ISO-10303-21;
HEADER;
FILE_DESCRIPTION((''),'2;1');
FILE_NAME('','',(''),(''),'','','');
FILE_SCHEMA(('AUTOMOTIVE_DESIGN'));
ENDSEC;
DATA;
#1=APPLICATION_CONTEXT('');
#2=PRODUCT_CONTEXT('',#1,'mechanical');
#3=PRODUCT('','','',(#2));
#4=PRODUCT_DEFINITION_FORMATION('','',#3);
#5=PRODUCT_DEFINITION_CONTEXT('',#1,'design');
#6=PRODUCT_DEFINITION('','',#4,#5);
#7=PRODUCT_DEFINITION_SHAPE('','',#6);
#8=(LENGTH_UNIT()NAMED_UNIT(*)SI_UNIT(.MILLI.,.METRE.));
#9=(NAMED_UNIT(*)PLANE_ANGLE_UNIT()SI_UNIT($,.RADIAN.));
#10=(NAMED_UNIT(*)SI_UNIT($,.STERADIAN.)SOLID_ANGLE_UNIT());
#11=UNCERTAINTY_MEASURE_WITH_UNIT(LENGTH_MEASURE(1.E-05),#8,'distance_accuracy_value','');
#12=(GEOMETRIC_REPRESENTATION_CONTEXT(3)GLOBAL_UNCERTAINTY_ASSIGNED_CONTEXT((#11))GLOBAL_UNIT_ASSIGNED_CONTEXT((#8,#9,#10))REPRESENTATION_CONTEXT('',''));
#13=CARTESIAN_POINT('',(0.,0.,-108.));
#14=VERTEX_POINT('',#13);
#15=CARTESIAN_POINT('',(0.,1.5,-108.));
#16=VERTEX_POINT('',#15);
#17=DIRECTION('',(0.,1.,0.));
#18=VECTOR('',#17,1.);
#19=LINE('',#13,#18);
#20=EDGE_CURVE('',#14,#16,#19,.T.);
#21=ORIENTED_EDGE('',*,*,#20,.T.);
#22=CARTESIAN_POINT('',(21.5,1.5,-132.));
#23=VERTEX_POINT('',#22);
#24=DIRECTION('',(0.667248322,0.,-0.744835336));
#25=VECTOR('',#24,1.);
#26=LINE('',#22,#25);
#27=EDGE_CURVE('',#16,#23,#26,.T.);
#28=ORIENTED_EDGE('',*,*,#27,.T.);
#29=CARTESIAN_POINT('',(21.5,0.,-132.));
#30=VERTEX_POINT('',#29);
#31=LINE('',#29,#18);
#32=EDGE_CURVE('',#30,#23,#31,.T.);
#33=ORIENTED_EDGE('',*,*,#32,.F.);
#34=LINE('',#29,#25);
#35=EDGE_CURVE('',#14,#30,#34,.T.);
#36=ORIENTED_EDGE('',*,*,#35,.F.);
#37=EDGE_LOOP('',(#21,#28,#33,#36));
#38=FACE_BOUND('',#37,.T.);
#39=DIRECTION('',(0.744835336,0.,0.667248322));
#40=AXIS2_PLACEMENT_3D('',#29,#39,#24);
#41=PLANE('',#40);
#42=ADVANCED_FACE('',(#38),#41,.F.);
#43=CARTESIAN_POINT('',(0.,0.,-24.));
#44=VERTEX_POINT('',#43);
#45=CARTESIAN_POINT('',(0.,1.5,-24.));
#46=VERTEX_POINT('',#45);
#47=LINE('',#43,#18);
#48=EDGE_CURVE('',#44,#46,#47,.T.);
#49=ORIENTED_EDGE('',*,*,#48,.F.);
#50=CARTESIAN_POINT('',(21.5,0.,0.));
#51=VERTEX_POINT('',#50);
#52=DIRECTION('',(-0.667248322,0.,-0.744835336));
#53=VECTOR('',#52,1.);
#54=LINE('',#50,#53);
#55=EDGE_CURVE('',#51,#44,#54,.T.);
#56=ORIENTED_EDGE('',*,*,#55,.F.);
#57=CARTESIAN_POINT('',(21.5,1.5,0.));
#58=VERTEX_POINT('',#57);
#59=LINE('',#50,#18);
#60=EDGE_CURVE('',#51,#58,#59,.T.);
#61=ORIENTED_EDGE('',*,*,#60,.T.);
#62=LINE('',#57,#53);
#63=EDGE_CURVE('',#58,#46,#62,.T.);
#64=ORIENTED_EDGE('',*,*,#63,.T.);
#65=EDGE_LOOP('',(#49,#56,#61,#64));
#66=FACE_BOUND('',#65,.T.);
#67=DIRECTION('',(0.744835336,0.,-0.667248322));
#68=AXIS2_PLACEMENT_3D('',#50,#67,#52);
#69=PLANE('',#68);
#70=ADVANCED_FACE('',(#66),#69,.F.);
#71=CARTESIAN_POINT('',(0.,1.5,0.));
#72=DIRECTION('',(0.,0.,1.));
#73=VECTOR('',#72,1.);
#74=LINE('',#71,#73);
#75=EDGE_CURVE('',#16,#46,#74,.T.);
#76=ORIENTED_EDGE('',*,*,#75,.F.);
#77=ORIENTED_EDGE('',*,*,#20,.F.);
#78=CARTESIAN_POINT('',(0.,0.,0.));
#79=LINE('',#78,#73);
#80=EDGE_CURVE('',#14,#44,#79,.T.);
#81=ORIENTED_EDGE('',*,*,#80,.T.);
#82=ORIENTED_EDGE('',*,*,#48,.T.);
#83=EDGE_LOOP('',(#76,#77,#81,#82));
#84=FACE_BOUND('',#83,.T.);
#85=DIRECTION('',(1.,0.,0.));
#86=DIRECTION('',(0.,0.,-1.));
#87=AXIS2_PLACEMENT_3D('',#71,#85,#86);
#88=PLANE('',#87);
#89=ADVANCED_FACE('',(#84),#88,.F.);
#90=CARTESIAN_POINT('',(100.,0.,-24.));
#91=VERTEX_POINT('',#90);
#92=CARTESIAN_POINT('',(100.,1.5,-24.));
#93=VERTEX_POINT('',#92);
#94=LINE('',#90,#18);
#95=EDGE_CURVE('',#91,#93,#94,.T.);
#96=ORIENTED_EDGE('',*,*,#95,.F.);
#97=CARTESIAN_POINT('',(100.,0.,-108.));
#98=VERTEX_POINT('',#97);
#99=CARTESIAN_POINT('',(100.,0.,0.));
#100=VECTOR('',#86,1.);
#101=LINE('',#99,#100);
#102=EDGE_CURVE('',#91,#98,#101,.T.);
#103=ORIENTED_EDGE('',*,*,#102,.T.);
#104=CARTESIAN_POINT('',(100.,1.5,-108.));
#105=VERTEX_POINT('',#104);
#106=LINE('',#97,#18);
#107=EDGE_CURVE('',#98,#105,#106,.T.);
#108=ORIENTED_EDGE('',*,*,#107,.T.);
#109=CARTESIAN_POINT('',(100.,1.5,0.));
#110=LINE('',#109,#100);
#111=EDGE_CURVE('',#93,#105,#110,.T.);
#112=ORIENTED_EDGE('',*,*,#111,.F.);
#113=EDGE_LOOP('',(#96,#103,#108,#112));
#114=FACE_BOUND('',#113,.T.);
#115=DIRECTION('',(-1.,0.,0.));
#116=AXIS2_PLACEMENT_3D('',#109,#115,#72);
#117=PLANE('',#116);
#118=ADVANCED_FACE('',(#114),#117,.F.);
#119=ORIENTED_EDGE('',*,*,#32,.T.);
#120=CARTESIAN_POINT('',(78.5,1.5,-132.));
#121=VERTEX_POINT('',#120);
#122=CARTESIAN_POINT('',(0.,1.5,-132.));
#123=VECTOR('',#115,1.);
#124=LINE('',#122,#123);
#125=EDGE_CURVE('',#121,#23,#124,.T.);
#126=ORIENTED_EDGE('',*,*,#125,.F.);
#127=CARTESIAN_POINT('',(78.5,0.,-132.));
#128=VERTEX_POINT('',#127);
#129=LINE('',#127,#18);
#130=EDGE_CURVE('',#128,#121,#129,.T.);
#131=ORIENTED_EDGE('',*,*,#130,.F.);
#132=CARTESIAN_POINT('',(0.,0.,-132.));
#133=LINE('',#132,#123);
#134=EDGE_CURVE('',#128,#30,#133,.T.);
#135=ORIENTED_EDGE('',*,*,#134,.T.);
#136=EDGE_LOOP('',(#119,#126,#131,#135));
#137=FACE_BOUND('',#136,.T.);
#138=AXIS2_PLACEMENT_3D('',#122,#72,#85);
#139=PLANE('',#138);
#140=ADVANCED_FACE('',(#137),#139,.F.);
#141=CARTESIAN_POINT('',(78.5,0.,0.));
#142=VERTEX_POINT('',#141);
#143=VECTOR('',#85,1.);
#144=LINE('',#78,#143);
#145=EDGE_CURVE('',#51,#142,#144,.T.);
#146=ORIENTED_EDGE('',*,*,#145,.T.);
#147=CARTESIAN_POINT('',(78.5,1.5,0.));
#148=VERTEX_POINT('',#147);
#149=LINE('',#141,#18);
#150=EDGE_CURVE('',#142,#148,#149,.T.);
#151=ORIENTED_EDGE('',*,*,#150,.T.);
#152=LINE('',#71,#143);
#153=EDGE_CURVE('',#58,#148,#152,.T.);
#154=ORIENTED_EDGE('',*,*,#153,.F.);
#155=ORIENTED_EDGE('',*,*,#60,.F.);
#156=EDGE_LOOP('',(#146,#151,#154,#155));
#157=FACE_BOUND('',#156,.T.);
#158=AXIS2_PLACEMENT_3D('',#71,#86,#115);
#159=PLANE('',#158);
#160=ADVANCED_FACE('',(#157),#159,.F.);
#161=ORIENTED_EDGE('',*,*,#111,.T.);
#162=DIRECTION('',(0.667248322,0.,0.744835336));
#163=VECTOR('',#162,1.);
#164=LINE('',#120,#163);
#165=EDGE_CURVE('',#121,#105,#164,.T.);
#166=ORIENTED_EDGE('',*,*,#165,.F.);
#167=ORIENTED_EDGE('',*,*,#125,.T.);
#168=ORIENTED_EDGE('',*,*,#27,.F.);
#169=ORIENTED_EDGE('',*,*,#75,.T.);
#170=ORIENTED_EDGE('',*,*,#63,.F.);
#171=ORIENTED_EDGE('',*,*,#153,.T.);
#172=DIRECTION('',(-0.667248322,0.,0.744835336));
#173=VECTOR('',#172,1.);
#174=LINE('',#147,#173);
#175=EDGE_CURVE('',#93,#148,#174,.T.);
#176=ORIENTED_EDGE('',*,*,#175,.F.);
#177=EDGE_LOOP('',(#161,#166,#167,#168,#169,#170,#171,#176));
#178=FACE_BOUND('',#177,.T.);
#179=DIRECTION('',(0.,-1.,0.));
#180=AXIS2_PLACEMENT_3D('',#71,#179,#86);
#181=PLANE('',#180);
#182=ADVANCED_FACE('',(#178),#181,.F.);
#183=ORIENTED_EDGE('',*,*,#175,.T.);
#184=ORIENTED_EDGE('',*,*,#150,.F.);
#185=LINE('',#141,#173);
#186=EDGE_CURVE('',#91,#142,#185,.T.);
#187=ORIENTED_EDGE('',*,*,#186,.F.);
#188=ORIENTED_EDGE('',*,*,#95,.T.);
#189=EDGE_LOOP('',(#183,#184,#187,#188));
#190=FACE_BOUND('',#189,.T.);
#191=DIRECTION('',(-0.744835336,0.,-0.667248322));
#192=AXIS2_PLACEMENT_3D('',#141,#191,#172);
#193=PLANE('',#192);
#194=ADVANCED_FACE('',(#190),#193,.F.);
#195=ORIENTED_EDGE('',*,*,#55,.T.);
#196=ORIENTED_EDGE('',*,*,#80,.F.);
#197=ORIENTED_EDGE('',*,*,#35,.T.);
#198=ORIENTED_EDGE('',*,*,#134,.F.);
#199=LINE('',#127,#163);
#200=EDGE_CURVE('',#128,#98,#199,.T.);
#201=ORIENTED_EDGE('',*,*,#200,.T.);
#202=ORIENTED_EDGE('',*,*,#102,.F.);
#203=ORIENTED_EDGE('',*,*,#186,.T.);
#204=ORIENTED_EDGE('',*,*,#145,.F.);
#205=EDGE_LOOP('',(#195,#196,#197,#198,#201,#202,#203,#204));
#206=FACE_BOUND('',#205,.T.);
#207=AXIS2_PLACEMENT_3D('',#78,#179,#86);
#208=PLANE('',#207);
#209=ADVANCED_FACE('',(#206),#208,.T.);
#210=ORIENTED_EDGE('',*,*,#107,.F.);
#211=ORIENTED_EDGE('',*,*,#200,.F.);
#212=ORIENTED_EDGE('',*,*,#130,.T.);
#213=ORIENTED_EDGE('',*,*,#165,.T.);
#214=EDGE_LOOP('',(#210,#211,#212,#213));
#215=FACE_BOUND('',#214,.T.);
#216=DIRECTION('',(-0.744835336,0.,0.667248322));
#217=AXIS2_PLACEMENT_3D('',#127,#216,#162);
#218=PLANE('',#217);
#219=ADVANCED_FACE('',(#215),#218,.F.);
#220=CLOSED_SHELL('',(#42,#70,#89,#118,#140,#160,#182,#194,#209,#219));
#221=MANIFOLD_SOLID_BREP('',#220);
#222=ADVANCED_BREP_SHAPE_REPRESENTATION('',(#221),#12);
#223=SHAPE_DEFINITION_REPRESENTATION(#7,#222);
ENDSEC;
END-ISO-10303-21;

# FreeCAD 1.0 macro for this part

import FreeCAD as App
import Part
import Sketcher

V = App.Vector

doc = App.newDocument("Part")
params = doc.addObject("Spreadsheet::Sheet", "Params")
for row, (alias, value) in enumerate([
    ("sketch1_width", "100 mm"),
    ("sketch1_height", "132 mm"),
    ("pad1_length", "1.5 mm"),
    ("pocket1_length", "1.5 mm"),
], start=1):
    params.set(f"A{row}", alias)
    params.set(f"B{row}", "=" + value)
    params.setAlias(f"B{row}", alias)

body = doc.addObject("PartDesign::Body", "Body")

# Sketch on XZ plane
sketch1 = body.newObject("Sketcher::SketchObject", "Sketch")
sketch1.AttachmentSupport = (doc.getObject("XZ_Plane"), [""])
sketch1.MapMode = "FlatFace"
sketch1.addGeometry([
    Part.LineSegment(V(0, -132, 0), V(0, 0, 0)),
    Part.LineSegment(V(0, 0, 0), V(100, 0, 0)),
    Part.LineSegment(V(100, 0, 0), V(100, -132, 0)),
    Part.LineSegment(V(100, -132, 0), V(0, -132, 0)),
], False)
sketch1.addConstraint([
    Sketcher.Constraint("Coincident", 0, 2, 1, 1),
    Sketcher.Constraint("Coincident", 1, 2, 2, 1),
    Sketcher.Constraint("Coincident", 2, 2, 3, 1),
    Sketcher.Constraint("Coincident", 3, 2, 0, 1),
    Sketcher.Constraint("Vertical", 0),
    Sketcher.Constraint("Horizontal", 1),
    Sketcher.Constraint("Vertical", 2),
    Sketcher.Constraint("Horizontal", 3),
    Sketcher.Constraint("Coincident", 0, 2, -1, 1),
    Sketcher.Constraint("DistanceX", 1, 1, 1, 2, 100.0),
    Sketcher.Constraint("DistanceY", 0, 1, 0, 2, 132.0),
])
sketch1.setExpression("Constraints[9]", "Params.sketch1_width")
sketch1.setExpression("Constraints[10]", "Params.sketch1_height")
pad1 = body.newObject("PartDesign::Pad", "Pad")
pad1.Profile = sketch1
pad1.setExpression("Length", "Params.pad1_length")
pad1.Reversed = True

# Sketch on XZ plane
sketch2 = body.newObject("Sketcher::SketchObject", "Sketch001")
sketch2.AttachmentSupport = (doc.getObject("XZ_Plane"), [""])
sketch2.MapMode = "FlatFace"
sketch2.AttachmentOffset = App.Placement(V(0, 0, -1.5), App.Rotation())
sketch2.addGeometry([
    Part.LineSegment(V(78, -132, 0), V(100, -108, 0)),  # 0
    Part.LineSegment(V(100, -108, 0), V(127, -132, 0)),  # 1
    Part.LineSegment(V(127, -132, 0), V(105, -156, 0)),  # 2
    Part.LineSegment(V(105, -156, 0), V(78, -132, 0)),  # 3
    Part.LineSegment(V(-5, -156, 0), V(-27, -132, 0)),  # 4
    Part.LineSegment(V(-27, -132, 0), V(0, -108, 0)),  # 5
    Part.LineSegment(V(0, -108, 0), V(22, -132, 0)),  # 6
    Part.LineSegment(V(22, -132, 0), V(-5, -156, 0)),  # 7
    Part.LineSegment(V(105, 24, 0), V(127, 0, 0)),  # 8
    Part.LineSegment(V(127, 0, 0), V(100, -24, 0)),  # 9
    Part.LineSegment(V(100, -24, 0), V(78, 0, 0)),  # 10
    Part.LineSegment(V(78, 0, 0), V(105, 24, 0)),  # 11
    Part.LineSegment(V(0, -24, 0), V(-27, 0, 0)),  # 12
    Part.LineSegment(V(-27, 0, 0), V(-5, 24, 0)),  # 13
    Part.LineSegment(V(-5, 24, 0), V(22, 0, 0)),  # 14
    Part.LineSegment(V(22, 0, 0), V(0, -24, 0)),  # 15
], False)
sketch2.addConstraint([
    Sketcher.Constraint("Coincident", 0, 2, 1, 1),
    Sketcher.Constraint("Coincident", 1, 2, 2, 1),
    Sketcher.Constraint("Coincident", 2, 2, 3, 1),
    Sketcher.Constraint("Coincident", 3, 2, 0, 1),
    Sketcher.Constraint("Coincident", 4, 2, 5, 1),
    Sketcher.Constraint("Coincident", 5, 2, 6, 1),
    Sketcher.Constraint("Coincident", 6, 2, 7, 1),
    Sketcher.Constraint("Coincident", 7, 2, 4, 1),
    Sketcher.Constraint("Coincident", 8, 2, 9, 1),
    Sketcher.Constraint("Coincident", 9, 2, 10, 1),
    Sketcher.Constraint("Coincident", 10, 2, 11, 1),
    Sketcher.Constraint("Coincident", 11, 2, 8, 1),
    Sketcher.Constraint("Coincident", 12, 2, 13, 1),
    Sketcher.Constraint("Coincident", 13, 2, 14, 1),
    Sketcher.Constraint("Coincident", 14, 2, 15, 1),
    Sketcher.Constraint("Coincident", 15, 2, 12, 1),
    Sketcher.Constraint("PointOnObject", 5, 2, -2),
    Sketcher.Constraint("PointOnObject", 8, 2, -1),
    Sketcher.Constraint("PointOnObject", 10, 2, -1),
    Sketcher.Constraint("PointOnObject", 12, 2, -1),
    Sketcher.Constraint("PointOnObject", 14, 2, -1),
    Sketcher.Constraint("PointOnObject", 15, 2, -2),
    Sketcher.Constraint("Perpendicular", 0, 1),
    Sketcher.Constraint("Perpendicular", 1, 2),
    Sketcher.Constraint("Perpendicular", 2, 3),
    Sketcher.Constraint("Perpendicular", 4, 5),
    Sketcher.Constraint("Perpendicular", 5, 6),
    Sketcher.Constraint("Perpendicular", 6, 7),
    Sketcher.Constraint("Perpendicular", 7, 8),
    Sketcher.Constraint("Perpendicular", 8, 9),
    Sketcher.Constraint("Perpendicular", 9, 10),
    Sketcher.Constraint("Perpendicular", 10, 11),
    Sketcher.Constraint("Parallel", 3, 12),
    Sketcher.Constraint("Perpendicular", 12, 13),
    Sketcher.Constraint("Perpendicular", 13, 14),
    Sketcher.Constraint("Perpendicular", 14, 15),
    Sketcher.Constraint("Horizontal", 1, 2, 3, 2),
    Sketcher.Constraint("Horizontal", 3, 2, 4, 2),
    Sketcher.Constraint("Horizontal", 0, 2, 5, 2),
    Sketcher.Constraint("Horizontal", 4, 2, 6, 2),
    Sketcher.Constraint("Horizontal", 11, 2, 13, 2),
    Sketcher.Constraint("Vertical", 1, 2, 8, 2),
    Sketcher.Constraint("Vertical", 0, 2, 9, 2),
    Sketcher.Constraint("Vertical", 3, 2, 10, 2),
    Sketcher.Constraint("DistanceX", -1, 1, 0, 2, 100.0),
    Sketcher.Constraint("DistanceY", 0, 2, -1, 1, 108.0),
    Sketcher.Constraint("DistanceY", 1, 2, -1, 1, 132.0),
    Sketcher.Constraint("DistanceX", 6, 2, 3, 2, 57.0),
])
pocket1 = body.newObject("PartDesign::Pocket", "Pocket")
pocket1.Profile = sketch2
pocket1.setExpression("Length", "Params.pocket1_length")
pocket1.Reversed = True

doc.recompute()
